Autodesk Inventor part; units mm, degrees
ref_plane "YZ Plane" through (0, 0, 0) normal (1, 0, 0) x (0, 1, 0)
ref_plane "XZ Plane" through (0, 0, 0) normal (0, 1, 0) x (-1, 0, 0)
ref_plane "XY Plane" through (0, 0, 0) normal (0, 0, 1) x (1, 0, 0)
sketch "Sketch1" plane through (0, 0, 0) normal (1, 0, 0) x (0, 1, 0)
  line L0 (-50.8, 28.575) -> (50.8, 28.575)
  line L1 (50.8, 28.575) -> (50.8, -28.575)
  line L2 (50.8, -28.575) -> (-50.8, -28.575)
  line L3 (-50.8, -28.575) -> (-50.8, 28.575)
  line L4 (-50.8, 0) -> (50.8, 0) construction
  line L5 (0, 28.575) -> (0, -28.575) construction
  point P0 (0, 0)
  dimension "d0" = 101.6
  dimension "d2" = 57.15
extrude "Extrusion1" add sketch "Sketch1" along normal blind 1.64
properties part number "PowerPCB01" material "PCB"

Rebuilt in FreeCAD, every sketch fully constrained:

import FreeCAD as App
import Part
import Sketcher

V = App.Vector
Q = App.Units.Quantity


def add_polygon(sketch, points):
    """Adds a closed chain of lines whose ends are joined by coincident constraints."""
    first, n = sketch.GeometryCount, len(points)
    for a, b in zip(points, points[1:] + points[:1]):
        sketch.addGeometry(Part.LineSegment(App.Vector(*a, 0), App.Vector(*b, 0)), False)
    for i in range(n):
        sketch.addConstraint(Sketcher.Constraint("Coincident", first + i, 2, first + (i + 1) % n, 1))

doc = App.newDocument("Part")
body = doc.addObject("PartDesign::Body", "Body")

# Sketch on YZ plane
sketch1 = body.newObject("Sketcher::SketchObject", "Sketch")
sketch1.AttachmentSupport = (doc.getObject("YZ_Plane"), [""])
sketch1.MapMode = "FlatFace"
add_polygon(sketch1, [(51, 29), (-51, 29), (-51, -29), (51, -29)])  # lines 0-3
sketch1.addConstraint([
    Sketcher.Constraint("Horizontal", 0),
    Sketcher.Constraint("Vertical", 1),
    Sketcher.Constraint("Horizontal", 2),
    Sketcher.Constraint("Vertical", 3),
    Sketcher.Constraint("Symmetric", 0, 2, 2, 2, -1, 1),
    Sketcher.Constraint("DistanceX", 0, 2, 0, 1, Q("4 in")),
    Sketcher.Constraint("DistanceY", 1, 2, 1, 1, Q("2.25 in")),
])
pad1 = body.newObject("PartDesign::Pad", "Pad")
pad1.Profile = sketch1
pad1.Length = 1.64

doc.recompute()
